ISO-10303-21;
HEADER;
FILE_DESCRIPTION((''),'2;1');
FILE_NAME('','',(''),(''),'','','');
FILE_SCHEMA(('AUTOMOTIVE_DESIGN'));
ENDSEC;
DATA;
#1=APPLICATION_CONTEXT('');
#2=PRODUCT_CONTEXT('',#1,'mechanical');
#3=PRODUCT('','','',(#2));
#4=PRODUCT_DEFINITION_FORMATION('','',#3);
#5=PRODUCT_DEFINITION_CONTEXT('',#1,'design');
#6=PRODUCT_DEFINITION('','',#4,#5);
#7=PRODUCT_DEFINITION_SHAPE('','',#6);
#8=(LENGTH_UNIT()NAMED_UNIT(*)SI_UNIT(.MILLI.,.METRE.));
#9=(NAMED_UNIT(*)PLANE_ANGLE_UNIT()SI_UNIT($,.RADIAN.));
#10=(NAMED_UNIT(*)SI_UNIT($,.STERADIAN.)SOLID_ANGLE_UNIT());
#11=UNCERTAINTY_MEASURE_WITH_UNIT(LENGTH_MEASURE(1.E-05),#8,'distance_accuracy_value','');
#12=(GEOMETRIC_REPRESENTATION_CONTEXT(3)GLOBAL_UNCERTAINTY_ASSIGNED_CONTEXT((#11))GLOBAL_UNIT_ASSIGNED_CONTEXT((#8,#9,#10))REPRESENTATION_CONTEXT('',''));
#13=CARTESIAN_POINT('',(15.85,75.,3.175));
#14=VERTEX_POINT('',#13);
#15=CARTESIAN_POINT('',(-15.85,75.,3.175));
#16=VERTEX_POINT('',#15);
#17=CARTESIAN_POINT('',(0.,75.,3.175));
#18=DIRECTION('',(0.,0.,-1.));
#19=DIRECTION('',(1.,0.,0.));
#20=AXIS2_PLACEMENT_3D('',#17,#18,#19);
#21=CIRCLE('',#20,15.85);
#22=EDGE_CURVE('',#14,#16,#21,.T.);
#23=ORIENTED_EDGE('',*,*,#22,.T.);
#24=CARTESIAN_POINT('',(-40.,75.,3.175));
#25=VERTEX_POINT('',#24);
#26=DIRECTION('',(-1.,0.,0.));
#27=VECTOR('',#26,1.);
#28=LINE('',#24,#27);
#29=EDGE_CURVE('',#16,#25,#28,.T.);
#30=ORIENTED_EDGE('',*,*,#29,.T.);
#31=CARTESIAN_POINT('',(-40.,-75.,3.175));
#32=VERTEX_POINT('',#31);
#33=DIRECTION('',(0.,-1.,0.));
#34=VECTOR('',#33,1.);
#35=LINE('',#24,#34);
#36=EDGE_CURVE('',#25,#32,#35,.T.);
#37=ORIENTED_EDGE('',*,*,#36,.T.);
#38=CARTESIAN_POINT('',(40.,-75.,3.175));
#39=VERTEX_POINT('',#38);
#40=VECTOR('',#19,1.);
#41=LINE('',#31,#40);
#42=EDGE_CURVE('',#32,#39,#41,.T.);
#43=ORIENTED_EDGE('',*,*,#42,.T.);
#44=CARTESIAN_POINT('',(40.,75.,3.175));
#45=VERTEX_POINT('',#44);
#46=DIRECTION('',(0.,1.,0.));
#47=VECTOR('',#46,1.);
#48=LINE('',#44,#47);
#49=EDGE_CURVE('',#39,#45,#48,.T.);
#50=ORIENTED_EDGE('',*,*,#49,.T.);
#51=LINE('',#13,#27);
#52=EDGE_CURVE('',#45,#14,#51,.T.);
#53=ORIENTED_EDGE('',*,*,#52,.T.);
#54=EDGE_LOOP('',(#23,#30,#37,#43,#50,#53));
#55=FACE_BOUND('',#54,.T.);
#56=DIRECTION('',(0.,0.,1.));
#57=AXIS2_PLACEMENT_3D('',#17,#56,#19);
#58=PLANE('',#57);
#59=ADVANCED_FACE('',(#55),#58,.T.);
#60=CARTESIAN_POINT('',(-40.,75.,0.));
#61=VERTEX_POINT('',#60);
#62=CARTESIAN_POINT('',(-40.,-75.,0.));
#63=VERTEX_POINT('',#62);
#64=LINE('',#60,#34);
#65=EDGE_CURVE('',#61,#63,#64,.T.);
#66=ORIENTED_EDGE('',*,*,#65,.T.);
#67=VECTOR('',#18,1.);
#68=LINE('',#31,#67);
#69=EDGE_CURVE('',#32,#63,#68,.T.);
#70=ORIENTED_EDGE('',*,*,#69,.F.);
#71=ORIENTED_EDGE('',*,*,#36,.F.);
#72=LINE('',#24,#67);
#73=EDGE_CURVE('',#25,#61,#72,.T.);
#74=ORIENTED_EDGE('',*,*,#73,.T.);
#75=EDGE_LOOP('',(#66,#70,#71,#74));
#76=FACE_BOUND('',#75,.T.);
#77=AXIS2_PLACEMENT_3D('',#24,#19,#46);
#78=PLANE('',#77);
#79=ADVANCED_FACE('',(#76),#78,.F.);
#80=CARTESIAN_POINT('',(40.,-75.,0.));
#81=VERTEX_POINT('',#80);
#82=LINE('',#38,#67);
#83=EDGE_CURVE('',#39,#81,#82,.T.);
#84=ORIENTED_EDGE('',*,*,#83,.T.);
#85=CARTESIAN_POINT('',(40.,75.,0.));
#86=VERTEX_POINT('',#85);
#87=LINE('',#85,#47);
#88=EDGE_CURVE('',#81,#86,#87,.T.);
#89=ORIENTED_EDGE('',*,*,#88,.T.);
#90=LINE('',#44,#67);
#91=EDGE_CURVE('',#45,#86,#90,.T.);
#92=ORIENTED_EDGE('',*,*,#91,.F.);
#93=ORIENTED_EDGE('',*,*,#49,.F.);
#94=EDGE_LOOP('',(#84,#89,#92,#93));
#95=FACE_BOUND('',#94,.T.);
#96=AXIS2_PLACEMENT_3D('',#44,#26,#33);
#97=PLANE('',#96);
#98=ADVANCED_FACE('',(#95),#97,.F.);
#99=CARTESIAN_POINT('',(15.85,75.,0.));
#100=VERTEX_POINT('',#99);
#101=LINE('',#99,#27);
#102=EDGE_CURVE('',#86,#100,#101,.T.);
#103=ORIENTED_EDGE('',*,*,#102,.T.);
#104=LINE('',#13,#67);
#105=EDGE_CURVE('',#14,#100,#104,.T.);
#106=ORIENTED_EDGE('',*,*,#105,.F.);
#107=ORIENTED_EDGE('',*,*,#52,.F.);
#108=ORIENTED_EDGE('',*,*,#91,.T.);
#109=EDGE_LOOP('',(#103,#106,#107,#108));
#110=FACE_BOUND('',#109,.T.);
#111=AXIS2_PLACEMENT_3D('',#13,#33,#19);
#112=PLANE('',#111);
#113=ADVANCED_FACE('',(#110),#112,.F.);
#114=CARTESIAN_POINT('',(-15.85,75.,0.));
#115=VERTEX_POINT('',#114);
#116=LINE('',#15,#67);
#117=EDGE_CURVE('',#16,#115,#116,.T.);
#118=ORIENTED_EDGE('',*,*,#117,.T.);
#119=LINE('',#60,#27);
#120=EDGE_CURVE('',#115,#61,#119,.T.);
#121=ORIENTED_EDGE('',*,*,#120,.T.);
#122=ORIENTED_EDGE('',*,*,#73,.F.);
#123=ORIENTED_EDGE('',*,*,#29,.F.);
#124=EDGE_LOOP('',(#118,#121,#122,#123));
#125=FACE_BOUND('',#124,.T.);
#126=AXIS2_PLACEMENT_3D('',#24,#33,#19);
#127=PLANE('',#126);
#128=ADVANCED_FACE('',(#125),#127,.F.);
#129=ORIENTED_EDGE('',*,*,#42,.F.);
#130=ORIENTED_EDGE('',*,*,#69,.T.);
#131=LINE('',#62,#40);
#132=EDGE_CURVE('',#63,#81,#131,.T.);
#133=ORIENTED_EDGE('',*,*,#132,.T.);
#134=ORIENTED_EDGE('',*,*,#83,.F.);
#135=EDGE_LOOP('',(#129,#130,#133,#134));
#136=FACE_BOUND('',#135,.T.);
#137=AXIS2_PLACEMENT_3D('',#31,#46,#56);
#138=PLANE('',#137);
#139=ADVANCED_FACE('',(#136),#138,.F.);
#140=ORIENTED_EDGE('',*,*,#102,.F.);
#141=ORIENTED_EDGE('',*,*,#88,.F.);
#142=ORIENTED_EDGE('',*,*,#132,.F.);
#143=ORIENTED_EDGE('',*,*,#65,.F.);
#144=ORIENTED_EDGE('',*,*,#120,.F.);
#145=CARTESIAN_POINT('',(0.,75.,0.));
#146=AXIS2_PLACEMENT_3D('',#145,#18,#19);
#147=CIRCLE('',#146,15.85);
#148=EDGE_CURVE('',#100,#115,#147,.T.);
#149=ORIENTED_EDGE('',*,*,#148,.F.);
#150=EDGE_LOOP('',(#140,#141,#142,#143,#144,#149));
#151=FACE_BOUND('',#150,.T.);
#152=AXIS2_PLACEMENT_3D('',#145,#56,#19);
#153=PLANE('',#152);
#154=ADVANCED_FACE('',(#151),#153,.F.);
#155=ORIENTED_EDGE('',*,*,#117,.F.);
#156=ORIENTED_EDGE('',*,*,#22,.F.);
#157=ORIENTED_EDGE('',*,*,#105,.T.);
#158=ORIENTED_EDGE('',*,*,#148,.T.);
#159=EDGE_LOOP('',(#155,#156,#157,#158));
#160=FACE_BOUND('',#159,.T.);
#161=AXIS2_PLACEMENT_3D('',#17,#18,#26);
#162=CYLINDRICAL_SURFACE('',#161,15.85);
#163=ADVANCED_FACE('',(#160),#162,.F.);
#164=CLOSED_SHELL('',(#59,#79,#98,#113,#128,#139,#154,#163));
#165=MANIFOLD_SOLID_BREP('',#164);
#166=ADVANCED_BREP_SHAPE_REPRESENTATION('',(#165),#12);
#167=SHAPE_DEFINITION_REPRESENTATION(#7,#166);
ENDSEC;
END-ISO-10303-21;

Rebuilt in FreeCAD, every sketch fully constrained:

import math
import FreeCAD as App
import Part
import Sketcher
from FreeCAD import Vector
Q = App.Units.Quantity

doc = App.newDocument("Part")
params = doc.addObject("Spreadsheet::Sheet", "Params")
for row, (alias, value) in enumerate([
    ("sketch1_width", "80 mm"),
    ("sketch1_height", "150 mm"),
    ("sketch1_radius", "15.85 mm"),
    ("pad1_length", "3.175 mm"),
], start=1):
    params.set(f"A{row}", alias)
    params.set(f"B{row}", "=" + value)
    params.setAlias(f"B{row}", alias)

body = doc.addObject("PartDesign::Body", "Body")

sketch1 = body.newObject("Sketcher::SketchObject", "Sketch")
sketch1.AttachmentSupport = (doc.getObject("XY_Plane"), [""])
sketch1.MapMode = "FlatFace"
sketch1.addGeometry([
    Part.LineSegment(Vector(40, 75, 0), Vector(16, 75, 0)),
    Part.ArcOfCircle(Part.Circle(Vector(0, 75, 0), Vector(0, 0, 1), 16), math.radians(180), math.radians(360)),
    Part.LineSegment(Vector(-16, 75, 0), Vector(-40, 75, 0)),
    Part.LineSegment(Vector(-40, 75, 0), Vector(-40, -75, 0)),
    Part.LineSegment(Vector(-40, -75, 0), Vector(40, -75, 0)),
    Part.LineSegment(Vector(40, -75, 0), Vector(40, 75, 0)),
], False)
sketch1.addConstraint([
    Sketcher.Constraint("Coincident", 0, 2, 1, 2),
    Sketcher.Constraint("Coincident", 1, 1, 2, 1),
    Sketcher.Constraint("Coincident", 2, 2, 3, 1),
    Sketcher.Constraint("Coincident", 3, 2, 4, 1),
    Sketcher.Constraint("Coincident", 4, 2, 5, 1),
    Sketcher.Constraint("Coincident", 5, 2, 0, 1),
    Sketcher.Constraint("Horizontal", 0),
    Sketcher.Constraint("Horizontal", 2),
    Sketcher.Constraint("Vertical", 3),
    Sketcher.Constraint("Horizontal", 4),
    Sketcher.Constraint("Vertical", 5),
    Sketcher.Constraint("Symmetric", 2, 2, 4, 2, -1, 1),
    Sketcher.Constraint("Symmetric", 0, 2, 1, 1, -2),
    Sketcher.Constraint("Horizontal", 1, 3, 0, 2),
    Sketcher.Constraint("DistanceX", 4, 1, 4, 2, Q("80 mm")),
    Sketcher.Constraint("DistanceY", 3, 2, 3, 1, Q("150 mm")),
    Sketcher.Constraint("Radius", 1, Q("15.85 mm")),
])
sketch1.setExpression("Constraints[14]", "Params.sketch1_width")
sketch1.setExpression("Constraints[15]", "Params.sketch1_height")
sketch1.setExpression("Constraints[16]", "Params.sketch1_radius")
pad1 = body.newObject("PartDesign::Pad", "Pad")
pad1.Profile = sketch1
pad1.setExpression("Length", "Params.pad1_length")

doc.recompute()
